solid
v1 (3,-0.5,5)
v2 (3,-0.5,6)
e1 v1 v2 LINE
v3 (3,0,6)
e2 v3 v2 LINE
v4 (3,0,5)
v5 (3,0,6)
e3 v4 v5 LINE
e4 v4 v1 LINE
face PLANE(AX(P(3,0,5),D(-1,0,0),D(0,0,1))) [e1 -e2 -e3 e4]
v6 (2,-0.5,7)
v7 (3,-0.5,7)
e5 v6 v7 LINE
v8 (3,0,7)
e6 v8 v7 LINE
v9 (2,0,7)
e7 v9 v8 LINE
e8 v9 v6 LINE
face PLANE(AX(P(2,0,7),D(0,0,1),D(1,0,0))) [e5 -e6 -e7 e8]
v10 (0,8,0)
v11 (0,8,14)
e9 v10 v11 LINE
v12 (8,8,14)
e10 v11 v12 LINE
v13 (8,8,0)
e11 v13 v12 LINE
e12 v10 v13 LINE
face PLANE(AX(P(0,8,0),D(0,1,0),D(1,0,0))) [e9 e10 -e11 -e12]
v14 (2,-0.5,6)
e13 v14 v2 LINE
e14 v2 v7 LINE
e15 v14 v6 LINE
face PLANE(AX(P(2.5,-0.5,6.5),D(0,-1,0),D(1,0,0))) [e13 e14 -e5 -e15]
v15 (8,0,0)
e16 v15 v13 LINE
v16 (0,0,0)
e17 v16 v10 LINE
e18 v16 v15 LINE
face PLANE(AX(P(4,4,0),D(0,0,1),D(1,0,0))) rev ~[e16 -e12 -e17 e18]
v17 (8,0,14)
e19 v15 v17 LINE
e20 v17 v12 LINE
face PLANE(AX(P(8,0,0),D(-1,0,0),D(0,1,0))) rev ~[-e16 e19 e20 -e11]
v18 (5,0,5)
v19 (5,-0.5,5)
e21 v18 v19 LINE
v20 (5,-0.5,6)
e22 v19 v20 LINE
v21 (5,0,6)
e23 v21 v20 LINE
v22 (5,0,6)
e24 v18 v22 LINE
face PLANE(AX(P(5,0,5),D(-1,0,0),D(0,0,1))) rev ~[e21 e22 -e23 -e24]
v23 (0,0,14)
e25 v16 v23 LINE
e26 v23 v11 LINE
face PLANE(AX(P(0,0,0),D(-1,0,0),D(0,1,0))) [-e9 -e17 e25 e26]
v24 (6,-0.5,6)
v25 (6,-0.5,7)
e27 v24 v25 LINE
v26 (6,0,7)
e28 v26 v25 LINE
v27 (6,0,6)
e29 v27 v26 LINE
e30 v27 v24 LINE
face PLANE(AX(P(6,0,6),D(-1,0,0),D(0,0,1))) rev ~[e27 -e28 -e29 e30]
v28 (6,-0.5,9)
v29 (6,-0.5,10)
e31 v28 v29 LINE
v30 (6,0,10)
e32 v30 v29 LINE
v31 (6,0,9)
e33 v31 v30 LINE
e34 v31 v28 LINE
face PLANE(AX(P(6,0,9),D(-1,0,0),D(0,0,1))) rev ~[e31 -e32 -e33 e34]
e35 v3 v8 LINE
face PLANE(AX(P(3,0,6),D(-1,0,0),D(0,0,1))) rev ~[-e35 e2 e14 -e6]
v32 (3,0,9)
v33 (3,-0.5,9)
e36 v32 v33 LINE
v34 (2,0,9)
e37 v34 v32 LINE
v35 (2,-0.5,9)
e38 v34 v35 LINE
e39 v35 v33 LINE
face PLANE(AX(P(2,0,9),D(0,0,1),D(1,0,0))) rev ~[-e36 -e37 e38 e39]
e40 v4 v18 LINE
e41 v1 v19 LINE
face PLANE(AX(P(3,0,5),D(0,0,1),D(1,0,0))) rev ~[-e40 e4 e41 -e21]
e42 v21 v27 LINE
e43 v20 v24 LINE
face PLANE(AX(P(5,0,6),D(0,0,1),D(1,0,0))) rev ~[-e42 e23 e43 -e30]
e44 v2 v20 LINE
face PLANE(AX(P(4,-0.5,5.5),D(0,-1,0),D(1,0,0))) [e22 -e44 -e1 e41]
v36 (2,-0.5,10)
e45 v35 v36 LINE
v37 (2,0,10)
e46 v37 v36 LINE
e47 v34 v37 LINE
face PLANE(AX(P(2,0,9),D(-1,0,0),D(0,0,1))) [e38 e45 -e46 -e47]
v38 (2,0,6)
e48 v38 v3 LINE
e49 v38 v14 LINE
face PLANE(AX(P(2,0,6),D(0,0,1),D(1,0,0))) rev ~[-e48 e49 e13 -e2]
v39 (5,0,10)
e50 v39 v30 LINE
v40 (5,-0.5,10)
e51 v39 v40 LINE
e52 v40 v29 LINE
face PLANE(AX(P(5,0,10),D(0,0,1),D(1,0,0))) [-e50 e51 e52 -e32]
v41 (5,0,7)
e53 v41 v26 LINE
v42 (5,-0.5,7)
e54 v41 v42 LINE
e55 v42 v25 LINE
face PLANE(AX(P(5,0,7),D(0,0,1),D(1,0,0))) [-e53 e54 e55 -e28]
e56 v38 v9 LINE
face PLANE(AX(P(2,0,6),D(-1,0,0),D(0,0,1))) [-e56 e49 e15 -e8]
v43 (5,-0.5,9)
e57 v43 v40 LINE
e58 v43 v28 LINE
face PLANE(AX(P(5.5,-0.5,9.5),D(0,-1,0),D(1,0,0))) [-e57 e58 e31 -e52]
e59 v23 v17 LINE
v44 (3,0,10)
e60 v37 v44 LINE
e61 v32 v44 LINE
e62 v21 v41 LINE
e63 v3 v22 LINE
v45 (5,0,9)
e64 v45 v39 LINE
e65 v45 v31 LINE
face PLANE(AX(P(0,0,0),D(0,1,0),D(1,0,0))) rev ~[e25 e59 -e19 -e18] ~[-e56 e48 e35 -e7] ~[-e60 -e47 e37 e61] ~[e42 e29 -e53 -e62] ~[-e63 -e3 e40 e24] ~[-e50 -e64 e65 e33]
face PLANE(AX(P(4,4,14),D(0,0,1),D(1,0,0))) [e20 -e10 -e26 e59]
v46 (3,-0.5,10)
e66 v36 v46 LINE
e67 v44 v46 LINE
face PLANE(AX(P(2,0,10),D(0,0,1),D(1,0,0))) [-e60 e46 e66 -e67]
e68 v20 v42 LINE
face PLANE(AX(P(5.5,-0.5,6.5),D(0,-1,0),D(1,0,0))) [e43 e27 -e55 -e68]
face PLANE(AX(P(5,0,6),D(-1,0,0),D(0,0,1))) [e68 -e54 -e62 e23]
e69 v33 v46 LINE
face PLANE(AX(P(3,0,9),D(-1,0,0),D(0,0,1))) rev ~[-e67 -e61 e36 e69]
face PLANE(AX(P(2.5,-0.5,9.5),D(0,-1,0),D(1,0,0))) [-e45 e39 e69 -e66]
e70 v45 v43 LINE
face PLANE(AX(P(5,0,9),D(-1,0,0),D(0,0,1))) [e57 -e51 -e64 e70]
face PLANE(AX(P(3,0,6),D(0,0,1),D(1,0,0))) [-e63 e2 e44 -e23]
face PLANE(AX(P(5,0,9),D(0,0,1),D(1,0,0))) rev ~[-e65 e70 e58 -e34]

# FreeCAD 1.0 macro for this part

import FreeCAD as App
import Part
import Sketcher
from FreeCAD import Vector
Q = App.Units.Quantity


def add_polygon(sketch, points):
    """Adds a closed chain of lines whose ends are joined by coincident constraints."""
    first, n = sketch.GeometryCount, len(points)
    for a, b in zip(points, points[1:] + points[:1]):
        sketch.addGeometry(Part.LineSegment(App.Vector(*a, 0), App.Vector(*b, 0)), False)
    for i in range(n):
        sketch.addConstraint(Sketcher.Constraint("Coincident", first + i, 2, first + (i + 1) % n, 1))

doc = App.newDocument("Part")
body = doc.addObject("PartDesign::Body", "Body")

# Sketch on XY plane
sketch1 = body.newObject("Sketcher::SketchObject", "Sketch")
sketch1.AttachmentSupport = (doc.getObject("XY_Plane"), [""])
sketch1.MapMode = "FlatFace"
add_polygon(sketch1, [(0, 8), (0, 0), (8, 0), (8, 8)])  # lines 0-3
sketch1.addConstraint([
    Sketcher.Constraint("Vertical", 0),
    Sketcher.Constraint("Horizontal", 1),
    Sketcher.Constraint("Vertical", 2),
    Sketcher.Constraint("Horizontal", 3),
    Sketcher.Constraint("Coincident", 0, 2, -1, 1),
    Sketcher.Constraint("Equal", 3, 0),
    Sketcher.Constraint("DistanceX", 1, 1, 1, 2, Q("8 mm")),
])
pad1 = body.newObject("PartDesign::Pad", "Pad")
pad1.Profile = sketch1
pad1.Length = 14

# Sketch on XZ plane
sketch2 = body.newObject("Sketcher::SketchObject", "Sketch001")
sketch2.AttachmentSupport = (doc.getObject("XZ_Plane"), [""])
sketch2.MapMode = "FlatFace"
add_polygon(sketch2, [(2, 10), (2, 9), (3, 9), (3, 10)])  # lines 0-3
add_polygon(sketch2, [(5, 10), (5, 9), (6, 9), (6, 10)])  # lines 4-7
add_polygon(sketch2, [(2, 7), (2, 6), (3, 6), (3, 7)])  # lines 8-11
add_polygon(sketch2, [(5, 7), (5, 6), (6, 6), (6, 7)])  # lines 12-15
sketch2.addConstraint([
    Sketcher.Constraint("Vertical", 0),
    Sketcher.Constraint("Horizontal", 1),
    Sketcher.Constraint("Vertical", 2),
    Sketcher.Constraint("Horizontal", 3),
    Sketcher.Constraint("Vertical", 4),
    Sketcher.Constraint("Horizontal", 5),
    Sketcher.Constraint("Vertical", 6),
    Sketcher.Constraint("Horizontal", 7),
    Sketcher.Constraint("Vertical", 8),
    Sketcher.Constraint("Horizontal", 9),
    Sketcher.Constraint("Vertical", 10),
    Sketcher.Constraint("Horizontal", 11),
    Sketcher.Constraint("Vertical", 12),
    Sketcher.Constraint("Horizontal", 13),
    Sketcher.Constraint("Vertical", 14),
    Sketcher.Constraint("Horizontal", 15),
    Sketcher.Constraint("Horizontal", 1, 2, 4, 2),
    Sketcher.Constraint("Horizontal", 3, 2, 6, 2),
    Sketcher.Constraint("Horizontal", 9, 2, 12, 2),
    Sketcher.Constraint("Horizontal", 11, 2, 14, 2),
    Sketcher.Constraint("Vertical", 3, 2, 8, 2),
    Sketcher.Constraint("Vertical", 2, 2, 9, 2),
    Sketcher.Constraint("Vertical", 7, 2, 12, 2),
    Sketcher.Constraint("Vertical", 6, 2, 13, 2),
    Sketcher.Constraint("Equal", 3, 5),
    Sketcher.Constraint("Equal", 15, 0),
    Sketcher.Constraint("Equal", 6, 8),
    Sketcher.Constraint("DistanceX", 1, 1, 1, 2, Q("1 mm")),
    Sketcher.Constraint("DistanceX", -1, 1, 0, 2, Q("2 mm")),
    Sketcher.Constraint("DistanceY", -1, 1, 0, 2, Q("9 mm")),
    Sketcher.Constraint("DistanceX", -1, 1, 4, 2, Q("5 mm")),
    Sketcher.Constraint("DistanceY", -1, 1, 8, 2, Q("6 mm")),
])
pad2 = body.newObject("PartDesign::Pad", "Pad001")
pad2.Profile = sketch2
pad2.Length = 0.5

# Sketch on XZ plane
sketch3 = body.newObject("Sketcher::SketchObject", "Sketch002")
sketch3.AttachmentSupport = (doc.getObject("XZ_Plane"), [""])
sketch3.MapMode = "FlatFace"
add_polygon(sketch3, [(3, 6), (3, 5), (5, 5), (5, 6)])  # lines 0-3
sketch3.addConstraint([
    Sketcher.Constraint("Vertical", 0),
    Sketcher.Constraint("Horizontal", 1),
    Sketcher.Constraint("Vertical", 2),
    Sketcher.Constraint("Horizontal", 3),
    Sketcher.Constraint("DistanceX", 1, 1, 1, 2, Q("2 mm")),
    Sketcher.Constraint("DistanceY", 0, 2, 0, 1, Q("1 mm")),
    Sketcher.Constraint("DistanceX", -1, 1, 0, 2, Q("3 mm")),
    Sketcher.Constraint("DistanceY", -1, 1, 0, 2, Q("5 mm")),
])
pad3 = body.newObject("PartDesign::Pad", "Pad002")
pad3.Profile = sketch3
pad3.Length = 0.5

doc.recompute()
